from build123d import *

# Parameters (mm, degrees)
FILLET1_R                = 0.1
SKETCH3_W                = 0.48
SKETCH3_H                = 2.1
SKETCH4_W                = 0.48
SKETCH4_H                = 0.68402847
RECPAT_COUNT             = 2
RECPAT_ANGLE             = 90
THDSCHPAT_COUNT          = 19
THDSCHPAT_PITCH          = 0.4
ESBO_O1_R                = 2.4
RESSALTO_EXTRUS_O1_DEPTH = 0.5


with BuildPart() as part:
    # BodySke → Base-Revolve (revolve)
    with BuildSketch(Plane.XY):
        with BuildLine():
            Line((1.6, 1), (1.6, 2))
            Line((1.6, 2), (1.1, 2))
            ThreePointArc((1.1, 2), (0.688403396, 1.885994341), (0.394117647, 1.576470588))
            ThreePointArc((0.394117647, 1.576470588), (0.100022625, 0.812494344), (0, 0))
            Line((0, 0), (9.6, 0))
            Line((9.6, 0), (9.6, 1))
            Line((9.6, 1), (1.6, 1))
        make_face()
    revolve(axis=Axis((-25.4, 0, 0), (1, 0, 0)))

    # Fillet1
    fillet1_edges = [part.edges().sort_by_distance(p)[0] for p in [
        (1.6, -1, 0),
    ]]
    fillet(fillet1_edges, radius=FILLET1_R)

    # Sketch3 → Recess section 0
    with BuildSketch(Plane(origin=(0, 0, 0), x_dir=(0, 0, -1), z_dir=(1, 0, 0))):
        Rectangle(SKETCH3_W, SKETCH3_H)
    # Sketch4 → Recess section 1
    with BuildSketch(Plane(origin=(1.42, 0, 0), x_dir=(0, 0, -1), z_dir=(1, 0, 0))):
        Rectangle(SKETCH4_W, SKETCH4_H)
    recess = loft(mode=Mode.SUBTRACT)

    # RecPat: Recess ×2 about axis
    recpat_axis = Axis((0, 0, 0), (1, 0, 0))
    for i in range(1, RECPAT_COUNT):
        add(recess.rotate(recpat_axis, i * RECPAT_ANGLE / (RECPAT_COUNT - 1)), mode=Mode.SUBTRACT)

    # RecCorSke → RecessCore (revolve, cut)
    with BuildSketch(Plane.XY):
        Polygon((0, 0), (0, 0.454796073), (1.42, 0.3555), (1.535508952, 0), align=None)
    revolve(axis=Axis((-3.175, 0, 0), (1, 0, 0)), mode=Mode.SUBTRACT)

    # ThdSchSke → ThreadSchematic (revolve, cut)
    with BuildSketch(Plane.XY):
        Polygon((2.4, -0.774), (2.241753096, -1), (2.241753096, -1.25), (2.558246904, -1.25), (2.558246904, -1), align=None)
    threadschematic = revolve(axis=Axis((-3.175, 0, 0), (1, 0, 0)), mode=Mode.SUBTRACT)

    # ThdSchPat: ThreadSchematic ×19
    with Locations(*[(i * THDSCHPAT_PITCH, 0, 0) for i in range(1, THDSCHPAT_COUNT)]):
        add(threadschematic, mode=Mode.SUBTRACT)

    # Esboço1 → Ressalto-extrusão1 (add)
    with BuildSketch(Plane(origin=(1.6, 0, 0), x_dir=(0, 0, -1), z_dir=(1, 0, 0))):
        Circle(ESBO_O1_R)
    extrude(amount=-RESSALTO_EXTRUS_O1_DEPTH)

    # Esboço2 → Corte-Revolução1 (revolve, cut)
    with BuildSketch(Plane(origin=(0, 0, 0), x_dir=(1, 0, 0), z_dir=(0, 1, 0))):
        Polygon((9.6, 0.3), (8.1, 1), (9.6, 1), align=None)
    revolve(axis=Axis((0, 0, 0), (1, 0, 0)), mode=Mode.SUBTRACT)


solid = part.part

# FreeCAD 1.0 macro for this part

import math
import FreeCAD as App
import Part
import Sketcher
Q = App.Units.Quantity


def edges_at(feature, points):
    """Names of the edges that pass closest to the given points."""
    edges = feature.Shape.Edges
    near = lambda p: min(range(len(edges)), key=lambda i: edges[i].distToShape(Part.Vertex(*p))[0])
    return sorted({f"Edge{near(p) + 1}" for p in points})

doc = App.newDocument("Part")
params = doc.addObject("Spreadsheet::Sheet", "Params")
for row, (alias, value) in enumerate([
    ("sketch1_radius", "0.8 mm"),
    ("sketch1_width", "8 mm"),
    ("sketch1_height", "1 mm"),
    ("sketch1_radius2", "3.35 mm"),
    ("sketch1_width2", "0.5 mm"),
    ("revolution_angle", "360 deg"),
    ("fillet_radius", "0.1 mm"),
    ("sketch2_width", "2.1 mm"),
    ("sketch2_height", "0.48 mm"),
    ("sketch3_height", "0.48 mm"),
    ("groove_angle", "360 deg"),
    ("sketch5_height", "0.25 mm"),
    ("groove2_angle", "360 deg"),
    ("linearpattern_pitch", "0.4 mm"),
    ("sketch6_diameter", "4.8 mm"),
    ("pad1_length", "0.5 mm"),
    ("sketch7_width", "1.5 mm"),
    ("sketch7_height", "0.7 mm"),
    ("groove3_angle", "360 deg"),
], start=1):
    params.set(f"A{row}", alias)
    params.set(f"B{row}", "=" + value)
    params.setAlias(f"B{row}", alias)

body = doc.addObject("PartDesign::Body", "Body")

sketch1 = doc.addObject("Sketcher::SketchObject", "Sketch")
body.addObject(sketch1)
sketch1.AttachmentSupport = (doc.XY_Plane, [""])
sketch1.MapMode = "FlatFace"
sketch1.addGeometry([
    Part.LineSegment(App.Vector(1.6, 1, 0), App.Vector(1.6, 2, 0)),
    Part.LineSegment(App.Vector(1.6, 2, 0), App.Vector(1.1, 2, 0)),
    Part.ArcOfCircle(Part.Circle(App.Vector(1.1, 1.2, 0), App.Vector(0, 0, 1), 0.8), math.radians(90), math.radians(151.927513)),
    Part.ArcOfCircle(Part.Circle(App.Vector(3.35, 0, 0), App.Vector(0, 0, 1), 3.35), math.radians(151.927513), math.radians(180)),
    Part.LineSegment(App.Vector(0, 0, 0), App.Vector(9.6, 0, 0)),
    Part.LineSegment(App.Vector(9.6, 0, 0), App.Vector(9.6, 1, 0)),
    Part.LineSegment(App.Vector(9.6, 1, 0), App.Vector(1.6, 1, 0)),
], False)
sketch1.addConstraint([
    Sketcher.Constraint("Coincident", 0, 2, 1, 1),
    Sketcher.Constraint("Tangent", 1, 2, 2, 1),
    Sketcher.Constraint("Tangent", 2, 2, 3, 1),
    Sketcher.Constraint("Coincident", 3, 2, 4, 1),
    Sketcher.Constraint("Coincident", 4, 2, 5, 1),
    Sketcher.Constraint("Coincident", 5, 2, 6, 1),
    Sketcher.Constraint("Coincident", 6, 2, 0, 1),
    Sketcher.Constraint("Vertical", 0),
    Sketcher.Constraint("Horizontal", 1),
    Sketcher.Constraint("Horizontal", 4),
    Sketcher.Constraint("Vertical", 5),
    Sketcher.Constraint("Horizontal", 6),
    Sketcher.Constraint("Coincident", 3, 2, -1, 1),
    Sketcher.Constraint("PointOnObject", 3, 3, -1),
    Sketcher.Constraint("Equal", 0, 5),
    Sketcher.Constraint("Radius", 2, 0.8),
    Sketcher.Constraint("DistanceX", 6, 2, 6, 1, 8.0),
    Sketcher.Constraint("DistanceY", 0, 1, 0, 2, 1.0),
    Sketcher.Constraint("Radius", 3, 3.35),
    Sketcher.Constraint("DistanceX", 1, 2, 1, 1, 0.5),
])
sketch1.setExpression("Constraints[15]", "Params.sketch1_radius")
sketch1.setExpression("Constraints[16]", "Params.sketch1_width")
sketch1.setExpression("Constraints[17]", "Params.sketch1_height")
sketch1.setExpression("Constraints[18]", "Params.sketch1_radius2")
sketch1.setExpression("Constraints[19]", "Params.sketch1_width2")
revolution = doc.addObject("PartDesign::Revolution", "Revolution")
body.addObject(revolution)
revolution.Profile = sketch1
revolution.ReferenceAxis = (sketch1, ["H_Axis"])
revolution.setExpression("Angle", "Params.revolution_angle")
doc.recompute()

fillet = doc.addObject("PartDesign::Fillet", "Fillet")
body.addObject(fillet)
fillet.Base = (revolution, edges_at(revolution, [(1.6, -1, 0)]))
fillet.setExpression("Radius", "Params.fillet_radius")

sketch2 = doc.addObject("Sketcher::SketchObject", "Sketch001")
body.addObject(sketch2)
sketch2.AttachmentSupport = (doc.YZ_Plane, [""])
sketch2.MapMode = "FlatFace"
sketch2.addGeometry([
    Part.LineSegment(App.Vector(1.05, 0.24, 0), App.Vector(-1.05, 0.24, 0)),
    Part.LineSegment(App.Vector(-1.05, 0.24, 0), App.Vector(-1.05, -0.24, 0)),
    Part.LineSegment(App.Vector(-1.05, -0.24, 0), App.Vector(1.05, -0.24, 0)),
    Part.LineSegment(App.Vector(1.05, -0.24, 0), App.Vector(1.05, 0.24, 0)),
], False)
sketch2.addConstraint([
    Sketcher.Constraint("Coincident", 0, 2, 1, 1),
    Sketcher.Constraint("Coincident", 1, 2, 2, 1),
    Sketcher.Constraint("Coincident", 2, 2, 3, 1),
    Sketcher.Constraint("Coincident", 3, 2, 0, 1),
    Sketcher.Constraint("Horizontal", 0),
    Sketcher.Constraint("Vertical", 1),
    Sketcher.Constraint("Horizontal", 2),
    Sketcher.Constraint("Vertical", 3),
    Sketcher.Constraint("Symmetric", 0, 2, 2, 2, -1, 1),
    Sketcher.Constraint("DistanceX", 0, 2, 0, 1, 2.1),
    Sketcher.Constraint("DistanceY", 1, 2, 1, 1, 0.48),
])
sketch2.setExpression("Constraints[9]", "Params.sketch2_width")
sketch2.setExpression("Constraints[10]", "Params.sketch2_height")

sketch3 = doc.addObject("Sketcher::SketchObject", "Sketch002")
body.addObject(sketch3)
sketch3.AttachmentSupport = (doc.YZ_Plane, [""])
sketch3.MapMode = "FlatFace"
sketch3.AttachmentOffset = App.Placement(App.Vector(0, 0, 1.42), App.Rotation())
sketch3.addGeometry([
    Part.LineSegment(App.Vector(0.342014, 0.24, 0), App.Vector(-0.342014, 0.24, 0)),
    Part.LineSegment(App.Vector(-0.342014, 0.24, 0), App.Vector(-0.342014, -0.24, 0)),
    Part.LineSegment(App.Vector(-0.342014, -0.24, 0), App.Vector(0.342014, -0.24, 0)),
    Part.LineSegment(App.Vector(0.342014, -0.24, 0), App.Vector(0.342014, 0.24, 0)),
], False)
sketch3.addConstraint([
    Sketcher.Constraint("Coincident", 0, 2, 1, 1),
    Sketcher.Constraint("Coincident", 1, 2, 2, 1),
    Sketcher.Constraint("Coincident", 2, 2, 3, 1),
    Sketcher.Constraint("Coincident", 3, 2, 0, 1),
    Sketcher.Constraint("Horizontal", 0),
    Sketcher.Constraint("Vertical", 1),
    Sketcher.Constraint("Horizontal", 2),
    Sketcher.Constraint("Vertical", 3),
    Sketcher.Constraint("Symmetric", 0, 2, 2, 2, -1, 1),
    Sketcher.Constraint("DistanceY", 1, 2, 1, 1, 0.48),
    Sketcher.Constraint("DistanceX", 0, 2, 0, 1, 0.684028),
])
sketch3.setExpression("Constraints[9]", "Params.sketch3_height")

subtractiveloft = doc.addObject("PartDesign::SubtractiveLoft", "SubtractiveLoft")
body.addObject(subtractiveloft)
subtractiveloft.Profile = sketch2
subtractiveloft.Sections = [sketch3]
doc.recompute()

polarpattern = doc.addObject("PartDesign::PolarPattern", "PolarPattern")
body.addObject(polarpattern)
polarpattern.Originals = [subtractiveloft]
polarpattern.Axis = (doc.X_Axis, [""])
polarpattern.Angle = 90
polarpattern.Occurrences = 2
body.Tip = polarpattern

sketch4 = doc.addObject("Sketcher::SketchObject", "Sketch003")
body.addObject(sketch4)
sketch4.AttachmentSupport = (doc.XY_Plane, [""])
sketch4.MapMode = "FlatFace"
sketch4.addGeometry([
    Part.LineSegment(App.Vector(0, 0.454796, 0), App.Vector(0, 0, 0)),
    Part.LineSegment(App.Vector(0, 0, 0), App.Vector(1.535509, 0, 0)),
    Part.LineSegment(App.Vector(1.535509, 0, 0), App.Vector(1.42, 0.3555, 0)),
    Part.LineSegment(App.Vector(1.42, 0.3555, 0), App.Vector(0, 0.454796, 0)),
], False)
sketch4.addConstraint([
    Sketcher.Constraint("Coincident", 0, 2, 1, 1),
    Sketcher.Constraint("Coincident", 1, 2, 2, 1),
    Sketcher.Constraint("Coincident", 2, 2, 3, 1),
    Sketcher.Constraint("Coincident", 3, 2, 0, 1),
    Sketcher.Constraint("Vertical", 0),
    Sketcher.Constraint("Horizontal", 1),
    Sketcher.Constraint("Coincident", 0, 2, -1, 1),
    Sketcher.Constraint("Angle", 2, Q("108 deg")),
    Sketcher.Constraint("Angle", 3, Q("176 deg")),
    Sketcher.Constraint("DistanceX", -1, 1, 2, 2, 1.42),
    Sketcher.Constraint("DistanceX", 1, 1, 1, 2, 1.535509),
])
groove = doc.addObject("PartDesign::Groove", "Groove")
body.addObject(groove)
groove.Profile = sketch4
groove.ReferenceAxis = (sketch4, ["H_Axis"])
groove.setExpression("Angle", "Params.groove_angle")

sketch5 = doc.addObject("Sketcher::SketchObject", "Sketch004")
body.addObject(sketch5)
sketch5.AttachmentSupport = (doc.XY_Plane, [""])
sketch5.MapMode = "FlatFace"
sketch5.addGeometry([
    Part.LineSegment(App.Vector(2.4, -0.774, 0), App.Vector(2.241753, -1, 0)),
    Part.LineSegment(App.Vector(2.241753, -1, 0), App.Vector(2.241753, -1.25, 0)),
    Part.LineSegment(App.Vector(2.241753, -1.25, 0), App.Vector(2.558247, -1.25, 0)),
    Part.LineSegment(App.Vector(2.558247, -1.25, 0), App.Vector(2.558247, -1, 0)),
    Part.LineSegment(App.Vector(2.558247, -1, 0), App.Vector(2.4, -0.774, 0)),
], False)
sketch5.addConstraint([
    Sketcher.Constraint("Coincident", 0, 2, 1, 1),
    Sketcher.Constraint("Coincident", 1, 2, 2, 1),
    Sketcher.Constraint("Coincident", 2, 2, 3, 1),
    Sketcher.Constraint("Coincident", 3, 2, 4, 1),
    Sketcher.Constraint("Coincident", 4, 2, 0, 1),
    Sketcher.Constraint("Vertical", 1),
    Sketcher.Constraint("Horizontal", 2),
    Sketcher.Constraint("Vertical", 3),
    Sketcher.Constraint("Horizontal", 0, 2, 3, 2),
    Sketcher.Constraint("Equal", 0, 4),
    Sketcher.Constraint("Angle", 0, Q("-125 deg")),
    Sketcher.Constraint("DistanceY", 0, 2, -1, 1, 1.0),
    Sketcher.Constraint("DistanceY", 1, 2, 1, 1, 0.25),
    Sketcher.Constraint("DistanceX", -1, 1, 4, 2, 2.4),
    Sketcher.Constraint("DistanceY", 4, 2, -1, 1, 0.774),
])
sketch5.setExpression("Constraints[12]", "Params.sketch5_height")
groove2 = doc.addObject("PartDesign::Groove", "Groove001")
body.addObject(groove2)
groove2.Profile = sketch5
groove2.ReferenceAxis = (sketch5, ["H_Axis"])
groove2.setExpression("Angle", "Params.groove2_angle")
doc.recompute()

linearpattern = doc.addObject("PartDesign::LinearPattern", "LinearPattern")
body.addObject(linearpattern)
linearpattern.Originals = [groove2]
linearpattern.Direction = (doc.X_Axis, [""])
linearpattern.Mode = "offset"
linearpattern.setExpression("Offset", "Params.linearpattern_pitch")
linearpattern.Occurrences = 19
body.Tip = linearpattern

sketch6 = doc.addObject("Sketcher::SketchObject", "Sketch005")
body.addObject(sketch6)
sketch6.AttachmentSupport = (doc.YZ_Plane, [""])
sketch6.MapMode = "FlatFace"
sketch6.AttachmentOffset = App.Placement(App.Vector(0, 0, 1.6), App.Rotation())
sketch6.addGeometry(Part.Circle(App.Vector(0, 0, 0), App.Vector(0, 0, 1), 2.4), False)
sketch6.addConstraint([
    Sketcher.Constraint("Coincident", 0, 3, -1, 1),
    Sketcher.Constraint("Diameter", 0, 4.8),
])
sketch6.setExpression("Constraints[1]", "Params.sketch6_diameter")
pad1 = doc.addObject("PartDesign::Pad", "Pad")
body.addObject(pad1)
pad1.Profile = sketch6
pad1.setExpression("Length", "Params.pad1_length")
pad1.Reversed = True

sketch7 = doc.addObject("Sketcher::SketchObject", "Sketch006")
body.addObject(sketch7)
sketch7.AttachmentSupport = (doc.XZ_Plane, [""])
sketch7.MapMode = "FlatFace"
sketch7.addGeometry([
    Part.LineSegment(App.Vector(8.1, -1, 0), App.Vector(9.6, -0.3, 0)),
    Part.LineSegment(App.Vector(9.6, -0.3, 0), App.Vector(9.6, -1, 0)),
    Part.LineSegment(App.Vector(9.6, -1, 0), App.Vector(8.1, -1, 0)),
], False)
sketch7.addConstraint([
    Sketcher.Constraint("Coincident", 0, 2, 1, 1),
    Sketcher.Constraint("Coincident", 1, 2, 2, 1),
    Sketcher.Constraint("Coincident", 2, 2, 0, 1),
    Sketcher.Constraint("Vertical", 1),
    Sketcher.Constraint("Horizontal", 2),
    Sketcher.Constraint("DistanceX", 2, 2, 2, 1, 1.5),
    Sketcher.Constraint("DistanceY", 1, 2, 1, 1, 0.7),
    Sketcher.Constraint("DistanceY", 1, 2, -1, 1, 1.0),
    Sketcher.Constraint("DistanceX", -1, 1, 0, 2, 9.6),
])
sketch7.setExpression("Constraints[5]", "Params.sketch7_width")
sketch7.setExpression("Constraints[6]", "Params.sketch7_height")
groove3 = doc.addObject("PartDesign::Groove", "Groove002")
body.addObject(groove3)
groove3.Profile = sketch7
groove3.ReferenceAxis = (sketch7, ["H_Axis"])
groove3.setExpression("Angle", "Params.groove3_angle")

doc.recompute()
